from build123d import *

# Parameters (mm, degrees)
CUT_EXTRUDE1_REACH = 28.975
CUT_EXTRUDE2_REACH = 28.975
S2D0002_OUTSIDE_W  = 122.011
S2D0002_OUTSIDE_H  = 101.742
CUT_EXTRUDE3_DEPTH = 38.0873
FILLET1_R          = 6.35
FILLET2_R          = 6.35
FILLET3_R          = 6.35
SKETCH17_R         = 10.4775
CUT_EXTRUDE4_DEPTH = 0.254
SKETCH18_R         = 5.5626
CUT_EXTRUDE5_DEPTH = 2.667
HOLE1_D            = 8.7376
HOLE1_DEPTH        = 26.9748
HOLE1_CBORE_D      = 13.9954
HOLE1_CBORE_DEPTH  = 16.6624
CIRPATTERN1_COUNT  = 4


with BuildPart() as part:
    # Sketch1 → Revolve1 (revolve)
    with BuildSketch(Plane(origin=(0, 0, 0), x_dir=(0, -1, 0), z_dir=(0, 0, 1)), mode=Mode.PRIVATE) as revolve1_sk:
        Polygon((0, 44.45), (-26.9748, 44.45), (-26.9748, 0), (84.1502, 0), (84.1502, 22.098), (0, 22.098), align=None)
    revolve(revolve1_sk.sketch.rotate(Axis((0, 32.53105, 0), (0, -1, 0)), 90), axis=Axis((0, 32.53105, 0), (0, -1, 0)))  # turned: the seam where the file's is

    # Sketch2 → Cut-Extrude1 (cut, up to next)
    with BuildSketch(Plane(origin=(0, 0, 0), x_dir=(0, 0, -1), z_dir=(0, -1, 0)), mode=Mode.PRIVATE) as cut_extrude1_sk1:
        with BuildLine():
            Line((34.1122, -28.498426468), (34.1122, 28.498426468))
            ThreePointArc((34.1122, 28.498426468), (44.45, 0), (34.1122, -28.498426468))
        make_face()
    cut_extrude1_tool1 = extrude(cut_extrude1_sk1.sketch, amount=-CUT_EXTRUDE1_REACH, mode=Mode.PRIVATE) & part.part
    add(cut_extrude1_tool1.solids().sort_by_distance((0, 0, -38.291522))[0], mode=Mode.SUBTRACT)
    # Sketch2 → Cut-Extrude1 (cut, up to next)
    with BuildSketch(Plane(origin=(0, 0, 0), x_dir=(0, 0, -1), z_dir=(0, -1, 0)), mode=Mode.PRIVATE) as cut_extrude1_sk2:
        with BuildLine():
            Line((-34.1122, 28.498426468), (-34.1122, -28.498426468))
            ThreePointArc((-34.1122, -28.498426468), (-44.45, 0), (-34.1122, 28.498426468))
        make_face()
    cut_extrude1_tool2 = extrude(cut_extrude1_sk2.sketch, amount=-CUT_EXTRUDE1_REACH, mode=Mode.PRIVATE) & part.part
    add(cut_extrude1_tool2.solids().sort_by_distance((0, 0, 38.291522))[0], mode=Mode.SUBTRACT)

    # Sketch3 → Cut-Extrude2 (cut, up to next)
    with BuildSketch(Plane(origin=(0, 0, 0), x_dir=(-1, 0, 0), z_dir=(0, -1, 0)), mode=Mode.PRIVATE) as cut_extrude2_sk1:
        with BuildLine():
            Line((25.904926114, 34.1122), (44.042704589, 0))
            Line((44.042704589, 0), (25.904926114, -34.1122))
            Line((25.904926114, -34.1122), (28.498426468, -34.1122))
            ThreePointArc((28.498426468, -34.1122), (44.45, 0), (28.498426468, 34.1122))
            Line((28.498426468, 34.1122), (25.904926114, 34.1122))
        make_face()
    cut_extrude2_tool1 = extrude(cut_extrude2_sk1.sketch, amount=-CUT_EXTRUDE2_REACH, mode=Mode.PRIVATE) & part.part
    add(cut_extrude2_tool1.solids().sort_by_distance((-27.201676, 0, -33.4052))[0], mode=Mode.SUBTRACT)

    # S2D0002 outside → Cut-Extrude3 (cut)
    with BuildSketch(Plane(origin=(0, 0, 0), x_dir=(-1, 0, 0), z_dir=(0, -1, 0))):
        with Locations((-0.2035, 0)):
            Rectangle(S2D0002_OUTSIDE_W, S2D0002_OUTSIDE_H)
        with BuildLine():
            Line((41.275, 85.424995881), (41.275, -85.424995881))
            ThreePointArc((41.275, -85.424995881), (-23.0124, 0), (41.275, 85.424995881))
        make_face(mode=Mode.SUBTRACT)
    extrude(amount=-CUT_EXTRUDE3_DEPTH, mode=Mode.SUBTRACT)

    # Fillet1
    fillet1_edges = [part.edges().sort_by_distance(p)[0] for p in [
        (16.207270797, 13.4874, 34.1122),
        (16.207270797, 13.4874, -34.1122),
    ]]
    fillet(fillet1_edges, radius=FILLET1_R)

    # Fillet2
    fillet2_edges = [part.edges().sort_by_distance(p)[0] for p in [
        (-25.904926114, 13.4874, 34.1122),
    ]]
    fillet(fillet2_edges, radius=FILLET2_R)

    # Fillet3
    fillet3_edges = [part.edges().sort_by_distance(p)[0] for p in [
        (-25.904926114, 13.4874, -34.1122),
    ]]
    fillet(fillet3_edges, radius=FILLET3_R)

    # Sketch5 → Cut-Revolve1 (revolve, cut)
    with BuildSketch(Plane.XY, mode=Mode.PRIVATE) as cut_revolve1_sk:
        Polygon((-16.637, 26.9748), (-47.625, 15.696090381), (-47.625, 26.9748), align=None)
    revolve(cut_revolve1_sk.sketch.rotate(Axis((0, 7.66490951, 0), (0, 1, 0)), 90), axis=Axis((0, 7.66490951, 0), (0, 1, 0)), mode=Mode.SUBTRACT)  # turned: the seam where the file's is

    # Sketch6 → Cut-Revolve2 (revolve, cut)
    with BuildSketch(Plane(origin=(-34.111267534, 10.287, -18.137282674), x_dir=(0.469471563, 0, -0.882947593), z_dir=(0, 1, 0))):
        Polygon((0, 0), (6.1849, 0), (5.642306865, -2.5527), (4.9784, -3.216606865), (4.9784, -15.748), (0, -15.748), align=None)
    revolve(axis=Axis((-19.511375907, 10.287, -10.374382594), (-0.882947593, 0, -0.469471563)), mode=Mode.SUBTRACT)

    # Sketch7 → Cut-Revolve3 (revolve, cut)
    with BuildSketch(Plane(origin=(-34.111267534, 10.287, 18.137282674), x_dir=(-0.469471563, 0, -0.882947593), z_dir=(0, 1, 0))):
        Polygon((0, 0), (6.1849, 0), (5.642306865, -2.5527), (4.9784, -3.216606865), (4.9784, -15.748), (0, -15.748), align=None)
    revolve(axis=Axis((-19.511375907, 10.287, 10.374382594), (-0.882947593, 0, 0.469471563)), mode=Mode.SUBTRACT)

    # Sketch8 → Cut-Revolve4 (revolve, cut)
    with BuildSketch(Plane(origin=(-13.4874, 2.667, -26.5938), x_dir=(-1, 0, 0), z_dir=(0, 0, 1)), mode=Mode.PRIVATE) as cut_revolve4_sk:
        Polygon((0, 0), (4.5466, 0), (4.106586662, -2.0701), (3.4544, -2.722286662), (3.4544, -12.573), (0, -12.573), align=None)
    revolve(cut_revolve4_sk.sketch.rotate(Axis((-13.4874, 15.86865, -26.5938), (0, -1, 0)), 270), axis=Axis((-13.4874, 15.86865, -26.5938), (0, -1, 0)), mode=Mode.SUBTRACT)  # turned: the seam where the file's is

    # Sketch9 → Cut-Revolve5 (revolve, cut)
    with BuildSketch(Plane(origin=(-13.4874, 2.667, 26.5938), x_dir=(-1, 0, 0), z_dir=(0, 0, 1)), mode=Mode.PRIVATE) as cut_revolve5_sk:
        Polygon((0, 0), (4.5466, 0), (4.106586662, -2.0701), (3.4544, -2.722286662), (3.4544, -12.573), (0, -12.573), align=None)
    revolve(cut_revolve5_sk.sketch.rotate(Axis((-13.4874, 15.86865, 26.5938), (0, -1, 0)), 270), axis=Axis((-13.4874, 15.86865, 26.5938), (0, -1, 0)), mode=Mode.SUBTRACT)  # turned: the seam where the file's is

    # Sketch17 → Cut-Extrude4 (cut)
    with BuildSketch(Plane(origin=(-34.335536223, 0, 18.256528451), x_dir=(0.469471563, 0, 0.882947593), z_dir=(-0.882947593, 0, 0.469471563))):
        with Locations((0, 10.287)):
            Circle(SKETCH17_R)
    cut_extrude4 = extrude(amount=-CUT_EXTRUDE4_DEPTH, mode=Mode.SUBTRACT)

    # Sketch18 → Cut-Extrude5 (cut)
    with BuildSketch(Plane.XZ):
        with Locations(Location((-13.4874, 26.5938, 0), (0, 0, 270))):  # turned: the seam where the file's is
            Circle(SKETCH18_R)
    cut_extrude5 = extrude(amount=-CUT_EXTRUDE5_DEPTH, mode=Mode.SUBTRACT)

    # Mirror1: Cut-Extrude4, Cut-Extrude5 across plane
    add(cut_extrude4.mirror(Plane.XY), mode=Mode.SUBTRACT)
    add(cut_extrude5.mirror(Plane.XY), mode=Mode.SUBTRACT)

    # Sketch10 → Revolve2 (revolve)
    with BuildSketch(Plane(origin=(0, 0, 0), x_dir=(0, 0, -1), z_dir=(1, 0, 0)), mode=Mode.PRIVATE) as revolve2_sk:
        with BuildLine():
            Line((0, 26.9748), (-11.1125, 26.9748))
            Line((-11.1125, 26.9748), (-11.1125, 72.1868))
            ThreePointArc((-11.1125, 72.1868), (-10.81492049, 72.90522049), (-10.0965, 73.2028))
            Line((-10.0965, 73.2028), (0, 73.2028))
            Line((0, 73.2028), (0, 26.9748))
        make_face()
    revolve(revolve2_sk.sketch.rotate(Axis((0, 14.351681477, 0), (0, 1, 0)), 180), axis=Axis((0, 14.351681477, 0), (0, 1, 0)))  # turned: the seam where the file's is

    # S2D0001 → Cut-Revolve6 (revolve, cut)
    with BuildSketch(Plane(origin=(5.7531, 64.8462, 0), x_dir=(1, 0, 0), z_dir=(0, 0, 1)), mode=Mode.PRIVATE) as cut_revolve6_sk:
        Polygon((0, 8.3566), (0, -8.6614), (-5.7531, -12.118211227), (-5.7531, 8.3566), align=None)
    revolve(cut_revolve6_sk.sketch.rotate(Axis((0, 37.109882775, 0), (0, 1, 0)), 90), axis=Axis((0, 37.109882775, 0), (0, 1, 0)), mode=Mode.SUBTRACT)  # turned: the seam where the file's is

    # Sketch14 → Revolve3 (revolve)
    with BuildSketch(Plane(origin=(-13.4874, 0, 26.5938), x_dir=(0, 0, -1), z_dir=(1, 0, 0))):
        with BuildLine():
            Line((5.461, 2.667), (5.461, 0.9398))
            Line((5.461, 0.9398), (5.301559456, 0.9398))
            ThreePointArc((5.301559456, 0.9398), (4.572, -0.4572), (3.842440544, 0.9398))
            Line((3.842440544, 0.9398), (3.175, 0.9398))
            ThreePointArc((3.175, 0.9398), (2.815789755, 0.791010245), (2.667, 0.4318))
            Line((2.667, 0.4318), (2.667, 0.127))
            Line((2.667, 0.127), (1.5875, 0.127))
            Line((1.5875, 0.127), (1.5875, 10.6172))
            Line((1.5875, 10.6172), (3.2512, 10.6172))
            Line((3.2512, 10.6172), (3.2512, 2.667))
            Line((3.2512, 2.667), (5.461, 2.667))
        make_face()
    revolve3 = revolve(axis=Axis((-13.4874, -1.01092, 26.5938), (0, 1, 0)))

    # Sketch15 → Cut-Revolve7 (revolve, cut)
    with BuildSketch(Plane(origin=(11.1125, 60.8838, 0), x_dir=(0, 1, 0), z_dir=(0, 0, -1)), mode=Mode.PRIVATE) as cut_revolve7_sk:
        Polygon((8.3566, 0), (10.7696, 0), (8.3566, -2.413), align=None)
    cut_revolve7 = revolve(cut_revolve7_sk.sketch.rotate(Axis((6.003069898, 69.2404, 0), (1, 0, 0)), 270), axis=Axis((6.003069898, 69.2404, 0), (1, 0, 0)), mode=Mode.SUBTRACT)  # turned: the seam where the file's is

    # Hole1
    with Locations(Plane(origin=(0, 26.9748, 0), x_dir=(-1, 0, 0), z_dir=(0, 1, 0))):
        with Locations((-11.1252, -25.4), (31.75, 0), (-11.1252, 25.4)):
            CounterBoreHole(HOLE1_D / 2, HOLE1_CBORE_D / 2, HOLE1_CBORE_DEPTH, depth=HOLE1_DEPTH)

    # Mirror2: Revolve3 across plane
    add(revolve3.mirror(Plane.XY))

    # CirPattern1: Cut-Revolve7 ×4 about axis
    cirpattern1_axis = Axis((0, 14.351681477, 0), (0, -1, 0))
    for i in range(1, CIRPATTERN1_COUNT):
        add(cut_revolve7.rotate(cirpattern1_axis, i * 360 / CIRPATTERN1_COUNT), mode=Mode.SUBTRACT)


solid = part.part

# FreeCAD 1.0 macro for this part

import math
import FreeCAD as App
import Part
import Sketcher
from FreeCAD import Vector
Q = App.Units.Quantity


def edges_at(feature, points):
    """Names of the edges that pass closest to the given points."""
    edges = feature.Shape.Edges
    near = lambda p: min(range(len(edges)), key=lambda i: edges[i].distToShape(Part.Vertex(*p))[0])
    return sorted({f"Edge{near(p) + 1}" for p in points})


def add_polygon(sketch, points):
    """Adds a closed chain of lines whose ends are joined by coincident constraints."""
    first, n = sketch.GeometryCount, len(points)
    for a, b in zip(points, points[1:] + points[:1]):
        sketch.addGeometry(Part.LineSegment(App.Vector(*a, 0), App.Vector(*b, 0)), False)
    for i in range(n):
        sketch.addConstraint(Sketcher.Constraint("Coincident", first + i, 2, first + (i + 1) % n, 1))

doc = App.newDocument("Part")
params = doc.addObject("Spreadsheet::Sheet", "Params")
for row, (alias, value) in enumerate([
    ("sketch1_width", "1.75 in"),
    ("sketch1_width2", "0.87 in"),
    ("sketch1_height", "1.062 in"),
    ("sketch1_height2", "4.375 in"),
    ("revolution_angle", "360 deg"),
    ("sketch2_radius", "1.75 in"),
    ("sketch3_radius", "1.75 in"),
    ("sketch4_radius", "1.75 in"),
    ("sketch5_radius", "3.5 in"),
    ("pocket4_length", "1.4995 in"),
    ("fillet_radius", "0.25 in"),
    ("fillet2_radius", "0.25 in"),
    ("fillet3_radius", "0.25 in"),
    ("sketch6_width", "1.22 in"),
    ("groove_angle", "360 deg"),
    ("sketch7_length", "0.62 in"),
    ("sketch7_length2", "0.196 in"),
    ("groove2_angle", "360 deg"),
    ("sketch8_length", "0.62 in"),
    ("sketch8_length2", "0.196 in"),
    ("groove3_angle", "360 deg"),
    ("sketch9_width", "0.179 in"),
    ("sketch9_width2", "0.136 in"),
    ("sketch9_height", "0.495 in"),
    ("groove4_angle", "360 deg"),
    ("sketch10_width", "0.179 in"),
    ("sketch10_width2", "0.136 in"),
    ("sketch10_height", "0.495 in"),
    ("groove5_angle", "360 deg"),
    ("sketch11_diameter", "0.825 in"),
    ("pocket5_length", "0.01 in"),
    ("sketch12_diameter", "0.438 in"),
    ("pocket6_length", "0.105 in"),
    ("sketch13_radius", "0.04 in"),
    ("sketch13_width", "1.82 in"),
    ("sketch13_height", "0.4375 in"),
    ("revolution2_angle", "360 deg"),
    ("sketch14_height", "0.67 in"),
    ("groove6_angle", "360 deg"),
    ("sketch15_radius", "0.02 in"),
    ("sketch15_radius2", "0.035 in"),
    ("sketch15_width", "0.068 in"),
    ("sketch15_width2", "0.313 in"),
    ("sketch15_height", "0.087 in"),
    ("revolution3_angle", "360 deg"),
    ("sketch16_width", "0.095 in"),
    ("groove7_angle", "360 deg"),
    ("sketch17_diameter", "0.344 in"),
    ("hole_diameter", "0.344 in"),
    ("hole_depth", "1.062 in"),
    ("hole_cbore_diameter", "0.551 in"),
    ("hole_cbore_depth", "0.656 in"),
], start=1):
    params.set(f"A{row}", alias)
    params.set(f"B{row}", "=" + value)
    params.setAlias(f"B{row}", alias)

body = doc.addObject("PartDesign::Body", "Body")

sketch1 = body.newObject("Sketcher::SketchObject", "Sketch")
sketch1.AttachmentSupport = (doc.getObject("XY_Plane"), [""])
sketch1.MapMode = "FlatFace"
add_polygon(sketch1, [(44, 0), (44, 27), (0, 27), (0, -84), (22, -84), (22, 0)])
sketch1.addConstraint([
    Sketcher.Constraint("Vertical", 0),
    Sketcher.Constraint("Horizontal", 1),
    Sketcher.Constraint("Vertical", 2),
    Sketcher.Constraint("Horizontal", 3),
    Sketcher.Constraint("Vertical", 4),
    Sketcher.Constraint("Horizontal", 5),
    Sketcher.Constraint("PointOnObject", 1, 2, -2),
    Sketcher.Constraint("PointOnObject", 4, 2, -1),
    Sketcher.Constraint("DistanceX", 1, 2, 1, 1, Q("1.75 in")),
    Sketcher.Constraint("DistanceX", 3, 1, 3, 2, Q("0.87 in")),
    Sketcher.Constraint("DistanceY", 0, 1, 0, 2, Q("1.062 in")),
    Sketcher.Constraint("DistanceY", 2, 2, 2, 1, Q("4.375 in")),
])
sketch1.setExpression("Constraints[14]", "Params.sketch1_width")
sketch1.setExpression("Constraints[15]", "Params.sketch1_width2")
sketch1.setExpression("Constraints[16]", "Params.sketch1_height")
sketch1.setExpression("Constraints[17]", "Params.sketch1_height2")
revolution = body.newObject("PartDesign::Revolution", "Revolution")
revolution.Profile = sketch1
revolution.ReferenceAxis = (sketch1, ["V_Axis"])
revolution.setExpression("Angle", "Params.revolution_angle")

sketch2 = body.newObject("Sketcher::SketchObject", "Sketch001")
sketch2.AttachmentSupport = (doc.getObject("XZ_Plane"), [""])
sketch2.MapMode = "FlatFace"
sketch2.addGeometry([
    Part.LineSegment(Vector(28, -34, 0), Vector(-28, -34, 0)),
    Part.ArcOfCircle(Part.Circle(Vector(0, 0, 0), Vector(0, 0, 1), 44), math.radians(-130), math.radians(-50)),
], False)
sketch2.addConstraint([
    Sketcher.Constraint("Coincident", 0, 1, 1, 2),
    Sketcher.Constraint("Coincident", 1, 1, 0, 2),
    Sketcher.Constraint("Horizontal", 0),
    Sketcher.Constraint("Coincident", 1, 3, -1, 1),
    Sketcher.Constraint("Radius", 1, Q("1.75 in")),
    Sketcher.Constraint("DistanceY", 0, 1, -1, 1, Q("1.343 in")),
])
sketch2.setExpression("Constraints[4]", "Params.sketch2_radius")
pocket1 = body.newObject("PartDesign::Pocket", "Pocket")
pocket1.Profile = sketch2
pocket1.Type = "UpToFirst"

sketch3 = body.newObject("Sketcher::SketchObject", "Sketch002")
sketch3.AttachmentSupport = (doc.getObject("XZ_Plane"), [""])
sketch3.MapMode = "FlatFace"
sketch3.addGeometry([
    Part.LineSegment(Vector(-28, 34, 0), Vector(28, 34, 0)),
    Part.ArcOfCircle(Part.Circle(Vector(0, 0, 0), Vector(0, 0, 1), 44), math.radians(50), math.radians(130)),
], False)
sketch3.addConstraint([
    Sketcher.Constraint("Coincident", 0, 1, 1, 2),
    Sketcher.Constraint("Coincident", 1, 1, 0, 2),
    Sketcher.Constraint("Horizontal", 0),
    Sketcher.Constraint("Coincident", 1, 3, -1, 1),
    Sketcher.Constraint("Radius", 1, Q("1.75 in")),
    Sketcher.Constraint("DistanceY", -1, 1, 0, 1, Q("1.343 in")),
])
sketch3.setExpression("Constraints[4]", "Params.sketch3_radius")
pocket2 = body.newObject("PartDesign::Pocket", "Pocket001")
pocket2.Profile = sketch3
pocket2.Type = "UpToFirst"

sketch4 = body.newObject("Sketcher::SketchObject", "Sketch003")
sketch4.AttachmentSupport = (doc.getObject("XZ_Plane"), [""])
sketch4.MapMode = "FlatFace"
sketch4.addGeometry([
    Part.LineSegment(Vector(-25.9, -34.1, 0), Vector(-44, 0, 0)),
    Part.LineSegment(Vector(-44, 0, 0), Vector(-25.9, 34.1, 0)),
    Part.LineSegment(Vector(-25.9, 34.1, 0), Vector(-28.5, 34.1, 0)),
    Part.ArcOfCircle(Part.Circle(Vector(0, 0, 0), Vector(0, 0, 1), 44.5), math.radians(130), math.radians(230)),
    Part.LineSegment(Vector(-28.5, -34.1, 0), Vector(-25.9, -34.1, 0)),
], False)
sketch4.addConstraint([
    Sketcher.Constraint("Coincident", 0, 2, 1, 1),
    Sketcher.Constraint("Coincident", 1, 2, 2, 1),
    Sketcher.Constraint("Coincident", 2, 2, 3, 1),
    Sketcher.Constraint("Coincident", 3, 2, 4, 1),
    Sketcher.Constraint("Coincident", 4, 2, 0, 1),
    Sketcher.Constraint("Horizontal", 2),
    Sketcher.Constraint("Horizontal", 4),
    Sketcher.Constraint("Coincident", 3, 3, -1, 1),
    Sketcher.Constraint("Symmetric", 1, 2, 4, 2, -1),
    Sketcher.Constraint("PointOnObject", 0, 2, -1),
    Sketcher.Constraint("Radius", 3, Q("1.75 in")),
    Sketcher.Constraint("Angle", 0, Q("118 deg")),
    Sketcher.Constraint("DistanceY", -1, 1, 1, 2, Q("1.343 in")),
    Sketcher.Constraint("DistanceX", 2, 2, 2, 1, Q("2.5935 mm")),
])
sketch4.setExpression("Constraints[10]", "Params.sketch4_radius")
pocket3 = body.newObject("PartDesign::Pocket", "Pocket002")
pocket3.Profile = sketch4
pocket3.Type = "UpToFirst"

sketch5 = body.newObject("Sketcher::SketchObject", "Sketch004")
sketch5.AttachmentSupport = (doc.getObject("XZ_Plane"), [""])
sketch5.MapMode = "FlatFace"
sketch5.addGeometry(Part.LineSegment(Vector(61, -51, 0), Vector(61, 51, 0)), False)
sketch5.addGeometry(Part.LineSegment(Vector(61, 51, 0), Vector(7, 51, 0)), False)
sketch5.addGeometry(Part.ArcOfCircle(Part.Circle(Vector(-66, 0, 0), Vector(0, 0, 1), 89), math.radians(-35), math.radians(35)), False)
sketch5.addGeometry(Part.LineSegment(Vector(7, -51, 0), Vector(61, -51, 0)), False)
add_polygon(sketch5, [(-41, -51), (-41, 51), (-61, 51), (-61, -51)])
sketch5.addConstraint([
    Sketcher.Constraint("Coincident", 0, 2, 1, 1),
    Sketcher.Constraint("Coincident", 1, 2, 2, 2),
    Sketcher.Constraint("Coincident", 2, 1, 3, 1),
    Sketcher.Constraint("Coincident", 3, 2, 0, 1),
    Sketcher.Constraint("Vertical", 0),
    Sketcher.Constraint("Horizontal", 1),
    Sketcher.Constraint("Horizontal", 3),
    Sketcher.Constraint("Vertical", 4),
    Sketcher.Constraint("Horizontal", 5),
    Sketcher.Constraint("Vertical", 6),
    Sketcher.Constraint("Horizontal", 7),
    Sketcher.Constraint("Symmetric", 1, 2, 2, 1, -1),
    Sketcher.Constraint("Horizontal", 1, 2, 4, 2),
    Sketcher.Constraint("Horizontal", 3, 2, 6, 2),
    Sketcher.Constraint("Radius", 2, Q("3.5 in")),
    Sketcher.Constraint("DistanceX", 2, 3, -1, 1, Q("2.594 in")),
    Sketcher.Constraint("DistanceX", 4, 2, -1, 1, Q("1.625 in")),
    Sketcher.Constraint("DistanceX", 5, 2, 5, 1, Q("19.527 mm")),
    Sketcher.Constraint("DistanceY", 0, 1, 0, 2, Q("101.742 mm")),
    Sketcher.Constraint("DistanceX", -1, 1, 0, 2, Q("61.209 mm")),
])
sketch5.setExpression("Constraints[18]", "Params.sketch5_radius")
pocket4 = body.newObject("PartDesign::Pocket", "Pocket003")
pocket4.Profile = sketch5
pocket4.setExpression("Length", "Params.pocket4_length")
doc.recompute()

fillet = body.newObject("PartDesign::Fillet", "Fillet")
fillet.Base = (pocket4, edges_at(pocket4, [(16.207, 13.487, 34.112), (16.207, 13.487, -34.112)]))
fillet.setExpression("Radius", "Params.fillet_radius")
doc.recompute()

fillet2 = body.newObject("PartDesign::Fillet", "Fillet001")
fillet2.Base = (fillet, edges_at(fillet, [(-25.905, 13.487, 34.112)]))
fillet2.setExpression("Radius", "Params.fillet2_radius")
doc.recompute()

fillet3 = body.newObject("PartDesign::Fillet", "Fillet002")
fillet3.Base = (fillet2, edges_at(fillet2, [(-25.905, 13.487, -34.112)]))
fillet3.setExpression("Radius", "Params.fillet3_radius")

sketch6 = body.newObject("Sketcher::SketchObject", "Sketch005")
sketch6.AttachmentSupport = (doc.getObject("XY_Plane"), [""])
sketch6.MapMode = "FlatFace"
add_polygon(sketch6, [(-48, 16), (-17, 27), (-48, 27)])
sketch6.addConstraint([
    Sketcher.Constraint("Horizontal", 1),
    Sketcher.Constraint("Vertical", 2),
    Sketcher.Constraint("Angle", 0, Q("20 deg")),
    Sketcher.Constraint("DistanceX", 1, 2, 1, 1, Q("1.22 in")),
    Sketcher.Constraint("DistanceX", 0, 2, -1, 1, Q("0.655 in")),
    Sketcher.Constraint("DistanceY", -1, 1, 0, 2, Q("1.062 in")),
])
sketch6.setExpression("Constraints[6]", "Params.sketch6_width")
groove = body.newObject("PartDesign::Groove", "Groove")
groove.Profile = sketch6
groove.ReferenceAxis = (sketch6, ["V_Axis"])
groove.setExpression("Angle", "Params.groove_angle")

sketch7 = body.newObject("Sketcher::SketchObject", "Sketch006")
sketch7.AttachmentSupport = (doc.getObject("XZ_Plane"), [""])
sketch7.MapMode = "FlatFace"
sketch7.AttachmentOffset = App.Placement(Vector(0, 0, -0.405 * 25.4), App.Rotation())
add_polygon(sketch7, [(-31.2, -23.6), (-34.1, -18.1), (-20.2, -10.7), (-17.9, -15.1), (-28.9, -21), (-29.2, -21.9)])
sketch7.addGeometry(Part.LineSegment(Vector(-20.2, -10.7, 0), Vector(-34.1, -18.1, 0)), True)
sketch7.addConstraint([
    Sketcher.Constraint("Coincident", 6, 1, 1, 2),
    Sketcher.Constraint("Coincident", 6, 2, 0, 2),
    Sketcher.Constraint("Perpendicular", 0, 1),
    Sketcher.Constraint("Perpendicular", 1, 2),
    Sketcher.Constraint("Perpendicular", 2, 3),
    Sketcher.Constraint("Angle", 0, Q("118 deg")),
    Sketcher.Constraint("Angle", 4, Q("-107 deg")),
    Sketcher.Constraint("Angle", 5, Q("-140 deg")),
    Sketcher.Constraint("Distance", 1, Q("0.62 in")),
    Sketcher.Constraint("Distance", 2, Q("0.196 in")),
    Sketcher.Constraint("Distance", 0, Q("0.2435 in")),
    Sketcher.Constraint("DistanceY", 3, 2, 1, 2, Q("10.278799 mm")),
    Sketcher.Constraint("DistanceX", 1, 2, -1, 1, Q("20.206609 mm")),
    Sketcher.Constraint("DistanceY", 2, 2, -1, 1, Q("15.139711 mm")),
])
sketch7.setExpression("Constraints[14]", "Params.sketch7_length")
sketch7.setExpression("Constraints[15]", "Params.sketch7_length2")
groove2 = body.newObject("PartDesign::Groove", "Groove001")
groove2.Profile = sketch7
groove2.ReferenceAxis = (sketch7, ["Axis0"])
groove2.setExpression("Angle", "Params.groove2_angle")

sketch8 = body.newObject("Sketcher::SketchObject", "Sketch007")
sketch8.AttachmentSupport = (doc.getObject("XZ_Plane"), [""])
sketch8.MapMode = "FlatFace"
sketch8.AttachmentOffset = App.Placement(Vector(0, 0, -0.405 * 25.4), App.Rotation())
add_polygon(sketch8, [(-37, 12.7), (-34.1, 18.1), (-20.2, 10.7), (-22.5, 6.3), (-33.6, 12.2), (-34.5, 12)])
sketch8.addGeometry(Part.LineSegment(Vector(-20.2, 10.7, 0), Vector(-34.1, 18.1, 0)), True)
sketch8.addConstraint([
    Sketcher.Constraint("Coincident", 6, 1, 1, 2),
    Sketcher.Constraint("Coincident", 6, 2, 0, 2),
    Sketcher.Constraint("Perpendicular", 0, 1),
    Sketcher.Constraint("Perpendicular", 1, 2),
    Sketcher.Constraint("Perpendicular", 2, 3),
    Sketcher.Constraint("Angle", 0, Q("62 deg")),
    Sketcher.Constraint("Angle", 4, Q("-163 deg")),
    Sketcher.Constraint("Angle", 5, Q("164 deg")),
    Sketcher.Constraint("Distance", 1, Q("0.62 in")),
    Sketcher.Constraint("Distance", 2, Q("0.196 in")),
    Sketcher.Constraint("Distance", 0, Q("0.2435 in")),
    Sketcher.Constraint("DistanceY", -1, 1, 4, 2, Q("11.957001 mm")),
    Sketcher.Constraint("Distance", 5, Q("2.609729 mm")),
    Sketcher.Constraint("DistanceX", 1, 2, -1, 1, Q("20.206609 mm")),
])
sketch8.setExpression("Constraints[14]", "Params.sketch8_length")
sketch8.setExpression("Constraints[15]", "Params.sketch8_length2")
groove3 = body.newObject("PartDesign::Groove", "Groove002")
groove3.Profile = sketch8
groove3.ReferenceAxis = (sketch8, ["Axis0"])
groove3.setExpression("Angle", "Params.groove3_angle")

sketch9 = body.newObject("Sketcher::SketchObject", "Sketch008")
sketch9.AttachmentSupport = (doc.getObject("XY_Plane"), [""])
sketch9.MapMode = "FlatFace"
sketch9.AttachmentOffset = App.Placement(Vector(0, 0, -1.047 * 25.4), App.Rotation())
add_polygon(sketch9, [(-18, 2.7), (-13.5, 2.7), (-13.5, 15.2), (-16.9, 15.2), (-16.9, 5.4), (-17.6, 4.7)])
sketch9.addGeometry(Part.LineSegment(Vector(-13.5, 15.2, 0), Vector(-13.5, 2.7, 0)), True)
sketch9.addConstraint([
    Sketcher.Constraint("Horizontal", 0),
    Sketcher.Constraint("Vertical", 1),
    Sketcher.Constraint("Horizontal", 2),
    Sketcher.Constraint("Vertical", 3),
    Sketcher.Constraint("Vertical", 6),
    Sketcher.Constraint("Coincident", 6, 1, 1, 2),
    Sketcher.Constraint("Horizontal", 5, 2, 6, 2),
    Sketcher.Constraint("Angle", 4, Q("-135 deg")),
    Sketcher.Constraint("Angle", 5, Q("-102 deg")),
    Sketcher.Constraint("DistanceY", -1, 1, 1, 2, Q("0.6 in")),
    Sketcher.Constraint("DistanceX", 0, 1, 0, 2, Q("0.179 in")),
    Sketcher.Constraint("DistanceX", 2, 2, 2, 1, Q("0.136 in")),
    Sketcher.Constraint("DistanceY", 1, 1, 1, 2, Q("0.495 in")),
    Sketcher.Constraint("DistanceX", 5, 2, -1, 1, Q("0.71 in")),
    Sketcher.Constraint("DistanceY", -1, 1, 4, 2, Q("0.1865 in")),
])
sketch9.setExpression("Constraints[16]", "Params.sketch9_width")
sketch9.setExpression("Constraints[17]", "Params.sketch9_width2")
sketch9.setExpression("Constraints[18]", "Params.sketch9_height")
groove4 = body.newObject("PartDesign::Groove", "Groove003")
groove4.Profile = sketch9
groove4.ReferenceAxis = (sketch9, ["Axis0"])
groove4.setExpression("Angle", "Params.groove4_angle")

sketch10 = body.newObject("Sketcher::SketchObject", "Sketch009")
sketch10.AttachmentSupport = (doc.getObject("XY_Plane"), [""])
sketch10.MapMode = "FlatFace"
sketch10.AttachmentOffset = App.Placement(Vector(0, 0, 1.047 * 25.4), App.Rotation())
add_polygon(sketch10, [(-18, 2.7), (-13.5, 2.7), (-13.5, 15.2), (-16.9, 15.2), (-16.9, 5.4), (-17.6, 4.7)])
sketch10.addGeometry(Part.LineSegment(Vector(-13.5, 15.2, 0), Vector(-13.5, 2.7, 0)), True)
sketch10.addConstraint([
    Sketcher.Constraint("Horizontal", 0),
    Sketcher.Constraint("Vertical", 1),
    Sketcher.Constraint("Horizontal", 2),
    Sketcher.Constraint("Vertical", 3),
    Sketcher.Constraint("Vertical", 6),
    Sketcher.Constraint("Coincident", 6, 1, 1, 2),
    Sketcher.Constraint("Horizontal", 5, 2, 6, 2),
    Sketcher.Constraint("Angle", 4, Q("-135 deg")),
    Sketcher.Constraint("Angle", 5, Q("-102 deg")),
    Sketcher.Constraint("DistanceY", -1, 1, 1, 2, Q("0.6 in")),
    Sketcher.Constraint("DistanceX", 0, 1, 0, 2, Q("0.179 in")),
    Sketcher.Constraint("DistanceX", 2, 2, 2, 1, Q("0.136 in")),
    Sketcher.Constraint("DistanceY", 1, 1, 1, 2, Q("0.495 in")),
    Sketcher.Constraint("DistanceX", 5, 2, -1, 1, Q("0.71 in")),
    Sketcher.Constraint("DistanceY", -1, 1, 4, 2, Q("0.1865 in")),
])
sketch10.setExpression("Constraints[16]", "Params.sketch10_width")
sketch10.setExpression("Constraints[17]", "Params.sketch10_width2")
sketch10.setExpression("Constraints[18]", "Params.sketch10_height")
groove5 = body.newObject("PartDesign::Groove", "Groove004")
groove5.Profile = sketch10
groove5.ReferenceAxis = (sketch10, ["Axis0"])
groove5.setExpression("Angle", "Params.groove5_angle")

sketch11 = body.newObject("Sketcher::SketchObject", "Sketch010")
sketch11.Placement = App.Placement(Vector(-34.335536, 0, 18.256528), App.Rotation(Vector(0.469471563, 0, 0.882947593), Vector(0, 1, 0), Vector(-0.882947593, 0, 0.469471563), "ZXY"))
sketch11.addGeometry(Part.Circle(Vector(0, 10, 0), Vector(0, 0, 1), 10), False)
sketch11.addConstraint([
    Sketcher.Constraint("PointOnObject", 0, 3, -2),
    Sketcher.Constraint("Diameter", 0, Q("0.825 in")),
    Sketcher.Constraint("DistanceY", -1, 1, 0, 3, Q("0.405 in")),
])
sketch11.setExpression("Constraints[1]", "Params.sketch11_diameter")
pocket5 = body.newObject("PartDesign::Pocket", "Pocket004")
pocket5.Profile = sketch11
pocket5.setExpression("Length", "Params.pocket5_length")

sketch12 = body.newObject("Sketcher::SketchObject", "Sketch011")
sketch12.AttachmentSupport = (doc.getObject("XZ_Plane"), [""])
sketch12.MapMode = "FlatFace"
sketch12.addGeometry(Part.Circle(Vector(-13, 27, 0), Vector(0, 0, 1), 6), False)
sketch12.addConstraint([
    Sketcher.Constraint("Diameter", 0, Q("0.438 in")),
    Sketcher.Constraint("DistanceX", 0, 3, -1, 1, Q("0.531 in")),
    Sketcher.Constraint("DistanceY", -1, 1, 0, 3, Q("1.047 in")),
])
sketch12.setExpression("Constraints[0]", "Params.sketch12_diameter")
pocket6 = body.newObject("PartDesign::Pocket", "Pocket005")
pocket6.Profile = sketch12
pocket6.setExpression("Length", "Params.pocket6_length")
doc.recompute()

mirrored = body.newObject("PartDesign::Mirrored", "Mirrored")
mirrored.Originals = [pocket5, pocket6]
mirrored.MirrorPlane = (doc.getObject("XY_Plane"), [""])
body.Tip = mirrored

sketch13 = body.newObject("Sketcher::SketchObject", "Sketch012")
sketch13.AttachmentSupport = (doc.getObject("YZ_Plane"), [""])
sketch13.MapMode = "FlatFace"
sketch13.addGeometry([
    Part.LineSegment(Vector(27, 11.1, 0), Vector(27, 0, 0)),
    Part.LineSegment(Vector(27, 0, 0), Vector(73.2, 0, 0)),
    Part.LineSegment(Vector(73.2, 0, 0), Vector(73.2, 10.1, 0)),
    Part.ArcOfCircle(Part.Circle(Vector(72.2, 10.1, 0), Vector(0, 0, 1), 1), math.radians(0), math.radians(90)),
    Part.LineSegment(Vector(72.2, 11.1, 0), Vector(27, 11.1, 0)),
], False)
sketch13.addConstraint([
    Sketcher.Constraint("Coincident", 0, 2, 1, 1),
    Sketcher.Constraint("Coincident", 1, 2, 2, 1),
    Sketcher.Constraint("Tangent", 2, 2, 3, 1),
    Sketcher.Constraint("Tangent", 3, 2, 4, 1),
    Sketcher.Constraint("Coincident", 4, 2, 0, 1),
    Sketcher.Constraint("Vertical", 0),
    Sketcher.Constraint("Horizontal", 1),
    Sketcher.Constraint("Vertical", 2),
    Sketcher.Constraint("Horizontal", 4),
    Sketcher.Constraint("PointOnObject", 0, 2, -1),
    Sketcher.Constraint("Radius", 3, Q("0.04 in")),
    Sketcher.Constraint("DistanceX", 1, 1, 1, 2, Q("1.82 in")),
    Sketcher.Constraint("DistanceY", 0, 2, 0, 1, Q("0.4375 in")),
    Sketcher.Constraint("DistanceX", -1, 1, 3, 3, Q("2.842 in")),
])
sketch13.setExpression("Constraints[10]", "Params.sketch13_radius")
sketch13.setExpression("Constraints[11]", "Params.sketch13_width")
sketch13.setExpression("Constraints[12]", "Params.sketch13_height")
revolution2 = body.newObject("PartDesign::Revolution", "Revolution001")
revolution2.Profile = sketch13
revolution2.ReferenceAxis = (sketch13, ["H_Axis"])
revolution2.setExpression("Angle", "Params.revolution2_angle")

sketch14 = body.newObject("Sketcher::SketchObject", "Sketch013")
sketch14.AttachmentSupport = (doc.getObject("XY_Plane"), [""])
sketch14.MapMode = "FlatFace"
add_polygon(sketch14, [(6, 56), (6, 73), (0, 73), (0, 53)])
sketch14.addConstraint([
    Sketcher.Constraint("Vertical", 0),
    Sketcher.Constraint("Horizontal", 1),
    Sketcher.Constraint("Vertical", 2),
    Sketcher.Constraint("PointOnObject", 1, 2, -2),
    Sketcher.Constraint("Angle", 3, Q("31 deg")),
    Sketcher.Constraint("DistanceY", 0, 1, 0, 2, Q("0.67 in")),
    Sketcher.Constraint("DistanceX", 1, 2, 1, 1, Q("0.2265 in")),
    Sketcher.Constraint("DistanceY", -1, 1, 0, 2, Q("2.882 in")),
])
sketch14.setExpression("Constraints[9]", "Params.sketch14_height")
groove6 = body.newObject("PartDesign::Groove", "Groove005")
groove6.Profile = sketch14
groove6.ReferenceAxis = (sketch14, ["V_Axis"])
groove6.setExpression("Angle", "Params.groove6_angle")

sketch15 = body.newObject("Sketcher::SketchObject", "Sketch014")
sketch15.AttachmentSupport = (doc.getObject("YZ_Plane"), [""])
sketch15.MapMode = "FlatFace"
sketch15.AttachmentOffset = App.Placement(Vector(0, 0, -0.531 * 25.4), App.Rotation())
sketch15.addGeometry([
    Part.LineSegment(Vector(0.94, 21.13, 0), Vector(2.67, 21.13, 0)),
    Part.LineSegment(Vector(2.67, 21.13, 0), Vector(2.67, 23.34, 0)),
    Part.LineSegment(Vector(2.67, 23.34, 0), Vector(10.62, 23.34, 0)),
    Part.LineSegment(Vector(10.62, 23.34, 0), Vector(10.62, 25.01, 0)),
    Part.LineSegment(Vector(10.62, 25.01, 0), Vector(0.13, 25.01, 0)),
    Part.LineSegment(Vector(0.13, 25.01, 0), Vector(0.13, 23.93, 0)),
    Part.LineSegment(Vector(0.13, 23.93, 0), Vector(0.43, 23.93, 0)),
    Part.ArcOfCircle(Part.Circle(Vector(0.43, 23.42, 0), Vector(0, 0, 1), 0.51), math.radians(0), math.radians(90)),
    Part.LineSegment(Vector(0.94, 23.42, 0), Vector(0.94, 22.75, 0)),
    Part.ArcOfCircle(Part.Circle(Vector(0.43, 22.02, 0), Vector(0, 0, 1), 0.89), math.radians(55), math.radians(305)),
    Part.LineSegment(Vector(0.94, 21.29, 0), Vector(0.94, 21.13, 0)),
], False)
sketch15.addGeometry(Part.LineSegment(Vector(0.13, 26.59, 0), Vector(10.62, 26.59, 0)), True)
sketch15.addConstraint([
    Sketcher.Constraint("Coincident", 0, 2, 1, 1),
    Sketcher.Constraint("Coincident", 1, 2, 2, 1),
    Sketcher.Constraint("Coincident", 2, 2, 3, 1),
    Sketcher.Constraint("Coincident", 3, 2, 4, 1),
    Sketcher.Constraint("Coincident", 4, 2, 5, 1),
    Sketcher.Constraint("Coincident", 5, 2, 6, 1),
    Sketcher.Constraint("Tangent", 6, 2, 7, 2),
    Sketcher.Constraint("Tangent", 7, 1, 8, 1),
    Sketcher.Constraint("Coincident", 8, 2, 9, 1),
    Sketcher.Constraint("Coincident", 9, 2, 10, 1),
    Sketcher.Constraint("Coincident", 10, 2, 0, 1),
    Sketcher.Constraint("Horizontal", 0),
    Sketcher.Constraint("Vertical", 1),
    Sketcher.Constraint("Horizontal", 2),
    Sketcher.Constraint("Vertical", 3),
    Sketcher.Constraint("Horizontal", 4),
    Sketcher.Constraint("Vertical", 5),
    Sketcher.Constraint("Horizontal", 6),
    Sketcher.Constraint("Vertical", 8),
    Sketcher.Constraint("Vertical", 10),
    Sketcher.Constraint("Horizontal", 11),
    Sketcher.Constraint("Vertical", 7, 3, 9, 3),
    Sketcher.Constraint("Vertical", 8, 2, 9, 2),
    Sketcher.Constraint("Vertical", 5, 2, 11, 1),
    Sketcher.Constraint("Vertical", 3, 2, 11, 2),
    Sketcher.Constraint("Radius", 7, Q("0.02 in")),
    Sketcher.Constraint("Radius", 9, Q("0.035 in")),
    Sketcher.Constraint("DistanceX", 4, 2, 1, 2, Q("0.1 in")),
    Sketcher.Constraint("DistanceX", 0, 1, 0, 2, Q("0.068 in")),
    Sketcher.Constraint("DistanceX", 2, 1, 2, 2, Q("0.313 in")),
    Sketcher.Constraint("DistanceY", 1, 1, 1, 2, Q("0.087 in")),
    Sketcher.Constraint("DistanceY", 0, 2, 7, 3, Q("0.09 in")),
    Sketcher.Constraint("DistanceY", 3, 1, 3, 2, Q("0.0655 in")),
    Sketcher.Constraint("DistanceX", -1, 1, 7, 3, Q("0.017 in")),
    Sketcher.Constraint("DistanceY", -1, 1, 7, 3, Q("0.922 in")),
    Sketcher.Constraint("DistanceY", -1, 1, 9, 3, Q("0.867 in")),
    Sketcher.Constraint("DistanceY", -1, 1, 11, 1, Q("1.047 in")),
])
sketch15.setExpression("Constraints[25]", "Params.sketch15_radius")
sketch15.setExpression("Constraints[26]", "Params.sketch15_radius2")
sketch15.setExpression("Constraints[28]", "Params.sketch15_width")
sketch15.setExpression("Constraints[29]", "Params.sketch15_width2")
sketch15.setExpression("Constraints[30]", "Params.sketch15_height")
revolution3 = body.newObject("PartDesign::Revolution", "Revolution002")
revolution3.Profile = sketch15
revolution3.ReferenceAxis = (sketch15, ["Axis0"])
revolution3.setExpression("Angle", "Params.revolution3_angle")

sketch16 = body.newObject("Sketcher::SketchObject", "Sketch015")
sketch16.AttachmentSupport = (doc.getObject("XY_Plane"), [""])
sketch16.MapMode = "FlatFace"
add_polygon(sketch16, [(11.1, 71.7), (11.1, 69.2), (8.7, 69.2)])
sketch16.addGeometry(Part.LineSegment(Vector(8.7, 69.2, 0), Vector(11.1, 69.2, 0)), True)
sketch16.addConstraint([
    Sketcher.Constraint("Vertical", 0),
    Sketcher.Constraint("Horizontal", 1),
    Sketcher.Constraint("Horizontal", 3),
    Sketcher.Constraint("Coincident", 3, 1, 1, 2),
    Sketcher.Constraint("Vertical", 2, 2, 3, 2),
    Sketcher.Constraint("Equal", 3, 0),
    Sketcher.Constraint("DistanceX", 1, 2, 1, 1, Q("0.095 in")),
    Sketcher.Constraint("DistanceX", -1, 1, 0, 2, Q("0.4375 in")),
    Sketcher.Constraint("DistanceY", -1, 1, 0, 2, Q("2.726 in")),
])
sketch16.setExpression("Constraints[9]", "Params.sketch16_width")
groove7 = body.newObject("PartDesign::Groove", "Groove006")
groove7.Profile = sketch16
groove7.ReferenceAxis = (sketch16, ["Axis0"])
groove7.setExpression("Angle", "Params.groove7_angle")

sketch17 = body.newObject("Sketcher::SketchObject", "Sketch016")
sketch17.AttachmentSupport = (doc.getObject("XZ_Plane"), [""])
sketch17.MapMode = "FlatFace"
sketch17.AttachmentOffset = App.Placement(Vector(0, 0, -1.062 * 25.4), App.Rotation())
sketch17.addGeometry([
    Part.Circle(Vector(11.1, -25.4, 0), Vector(0, 0, 1), 4.4),
    Part.Circle(Vector(-31.8, 0, 0), Vector(0, 0, 1), 4.4),
    Part.Circle(Vector(11.1, 25.4, 0), Vector(0, 0, 1), 4.4),
], False)
sketch17.addConstraint([
    Sketcher.Constraint("Equal", 0, 1),
    Sketcher.Constraint("Equal", 1, 2),
    Sketcher.Constraint("Symmetric", 0, 3, 2, 3, -1),
    Sketcher.Constraint("PointOnObject", 1, 3, -1),
    Sketcher.Constraint("Diameter", 0, Q("0.344 in")),
    Sketcher.Constraint("DistanceY", 0, 3, -1, 1, Q("1 in")),
    Sketcher.Constraint("DistanceX", 1, 3, -1, 1, Q("1.25 in")),
    Sketcher.Constraint("DistanceX", -1, 1, 0, 3, Q("0.438 in")),
])
sketch17.setExpression("Constraints[4]", "Params.sketch17_diameter")
doc.recompute()
hole = body.newObject("PartDesign::Hole", "Hole")
hole.Profile = sketch17
hole.ThreadType = "None"
hole.setExpression("Diameter", "Params.hole_diameter")
hole.DepthType = "Dimension"
hole.setExpression("Depth", "Params.hole_depth")
hole.DrillPoint = "Flat"
hole.HoleCutType = "Counterbore"
hole.setExpression("HoleCutDiameter", "Params.hole_cbore_diameter")
hole.setExpression("HoleCutDepth", "Params.hole_cbore_depth")
hole.Reversed = True
doc.recompute()

mirrored2 = body.newObject("PartDesign::Mirrored", "Mirrored001")
mirrored2.Originals = [revolution3]
mirrored2.MirrorPlane = (doc.getObject("XY_Plane"), [""])
body.Tip = mirrored2
doc.recompute()

polarpattern = body.newObject("PartDesign::PolarPattern", "PolarPattern")
polarpattern.Originals = [groove7]
polarpattern.Axis = (doc.getObject("Y_Axis"), [""])
polarpattern.Angle = 360
polarpattern.Occurrences = 4
body.Tip = polarpattern

doc.recompute()
